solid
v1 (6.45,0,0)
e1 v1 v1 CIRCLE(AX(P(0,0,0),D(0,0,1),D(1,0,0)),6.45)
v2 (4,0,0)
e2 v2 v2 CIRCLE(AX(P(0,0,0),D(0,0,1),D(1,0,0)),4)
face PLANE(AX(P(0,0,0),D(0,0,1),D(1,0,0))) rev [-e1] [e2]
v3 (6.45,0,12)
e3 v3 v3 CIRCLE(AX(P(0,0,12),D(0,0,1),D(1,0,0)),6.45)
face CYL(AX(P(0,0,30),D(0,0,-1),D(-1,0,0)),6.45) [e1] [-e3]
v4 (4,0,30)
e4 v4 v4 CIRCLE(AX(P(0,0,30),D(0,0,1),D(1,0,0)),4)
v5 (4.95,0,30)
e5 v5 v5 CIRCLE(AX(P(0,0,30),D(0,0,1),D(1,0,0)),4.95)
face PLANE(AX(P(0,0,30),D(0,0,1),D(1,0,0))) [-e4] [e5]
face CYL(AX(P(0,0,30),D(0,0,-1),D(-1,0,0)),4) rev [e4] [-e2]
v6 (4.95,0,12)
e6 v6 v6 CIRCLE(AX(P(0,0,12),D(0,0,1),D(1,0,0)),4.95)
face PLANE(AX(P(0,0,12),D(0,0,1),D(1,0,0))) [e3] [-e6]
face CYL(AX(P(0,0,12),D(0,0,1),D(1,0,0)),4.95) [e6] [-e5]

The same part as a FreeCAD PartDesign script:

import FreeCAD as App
import Part
import Sketcher
from FreeCAD import Vector
Q = App.Units.Quantity

doc = App.newDocument("Part")
body = doc.addObject("PartDesign::Body", "Body")

sketch1 = body.newObject("Sketcher::SketchObject", "Sketch")
sketch1.AttachmentSupport = (doc.getObject("XY_Plane"), [""])
sketch1.MapMode = "FlatFace"
sketch1.addGeometry([
    Part.Circle(Vector(0, 0, 0), Vector(0, 0, 1), 6.5),
    Part.Circle(Vector(0, 0, 0), Vector(0, 0, 1), 4),
], False)
sketch1.addConstraint([
    Sketcher.Constraint("Coincident", 0, 3, -1, 1),
    Sketcher.Constraint("Coincident", 1, 3, -1, 1),
    Sketcher.Constraint("Diameter", 1, Q("8 mm")),
    Sketcher.Constraint("Diameter", 0, Q("12.9 mm")),
])
pad1 = body.newObject("PartDesign::Pad", "Pad")
pad1.Profile = sketch1
pad1.Length = 30

sketch2 = body.newObject("Sketcher::SketchObject", "Sketch001")
sketch2.AttachmentSupport = (doc.getObject("XY_Plane"), [""])
sketch2.MapMode = "FlatFace"
sketch2.AttachmentOffset = App.Placement(Vector(0, 0, 12), App.Rotation())
sketch2.addGeometry([
    Part.Circle(Vector(0, 0, 0), Vector(0, 0, 1), 6.5),
    Part.Circle(Vector(0, 0, 0), Vector(0, 0, 1), 5),
], False)
sketch2.addConstraint([
    Sketcher.Constraint("Coincident", 0, 3, -1, 1),
    Sketcher.Constraint("Coincident", 1, 3, -1, 1),
    Sketcher.Constraint("Diameter", 0, Q("12.9 mm")),
    Sketcher.Constraint("Diameter", 1, Q("9.9 mm")),
])
pocket1 = body.newObject("PartDesign::Pocket", "Pocket")
pocket1.Profile = sketch2
pocket1.Length = 18
pocket1.Reversed = True

doc.recompute()
